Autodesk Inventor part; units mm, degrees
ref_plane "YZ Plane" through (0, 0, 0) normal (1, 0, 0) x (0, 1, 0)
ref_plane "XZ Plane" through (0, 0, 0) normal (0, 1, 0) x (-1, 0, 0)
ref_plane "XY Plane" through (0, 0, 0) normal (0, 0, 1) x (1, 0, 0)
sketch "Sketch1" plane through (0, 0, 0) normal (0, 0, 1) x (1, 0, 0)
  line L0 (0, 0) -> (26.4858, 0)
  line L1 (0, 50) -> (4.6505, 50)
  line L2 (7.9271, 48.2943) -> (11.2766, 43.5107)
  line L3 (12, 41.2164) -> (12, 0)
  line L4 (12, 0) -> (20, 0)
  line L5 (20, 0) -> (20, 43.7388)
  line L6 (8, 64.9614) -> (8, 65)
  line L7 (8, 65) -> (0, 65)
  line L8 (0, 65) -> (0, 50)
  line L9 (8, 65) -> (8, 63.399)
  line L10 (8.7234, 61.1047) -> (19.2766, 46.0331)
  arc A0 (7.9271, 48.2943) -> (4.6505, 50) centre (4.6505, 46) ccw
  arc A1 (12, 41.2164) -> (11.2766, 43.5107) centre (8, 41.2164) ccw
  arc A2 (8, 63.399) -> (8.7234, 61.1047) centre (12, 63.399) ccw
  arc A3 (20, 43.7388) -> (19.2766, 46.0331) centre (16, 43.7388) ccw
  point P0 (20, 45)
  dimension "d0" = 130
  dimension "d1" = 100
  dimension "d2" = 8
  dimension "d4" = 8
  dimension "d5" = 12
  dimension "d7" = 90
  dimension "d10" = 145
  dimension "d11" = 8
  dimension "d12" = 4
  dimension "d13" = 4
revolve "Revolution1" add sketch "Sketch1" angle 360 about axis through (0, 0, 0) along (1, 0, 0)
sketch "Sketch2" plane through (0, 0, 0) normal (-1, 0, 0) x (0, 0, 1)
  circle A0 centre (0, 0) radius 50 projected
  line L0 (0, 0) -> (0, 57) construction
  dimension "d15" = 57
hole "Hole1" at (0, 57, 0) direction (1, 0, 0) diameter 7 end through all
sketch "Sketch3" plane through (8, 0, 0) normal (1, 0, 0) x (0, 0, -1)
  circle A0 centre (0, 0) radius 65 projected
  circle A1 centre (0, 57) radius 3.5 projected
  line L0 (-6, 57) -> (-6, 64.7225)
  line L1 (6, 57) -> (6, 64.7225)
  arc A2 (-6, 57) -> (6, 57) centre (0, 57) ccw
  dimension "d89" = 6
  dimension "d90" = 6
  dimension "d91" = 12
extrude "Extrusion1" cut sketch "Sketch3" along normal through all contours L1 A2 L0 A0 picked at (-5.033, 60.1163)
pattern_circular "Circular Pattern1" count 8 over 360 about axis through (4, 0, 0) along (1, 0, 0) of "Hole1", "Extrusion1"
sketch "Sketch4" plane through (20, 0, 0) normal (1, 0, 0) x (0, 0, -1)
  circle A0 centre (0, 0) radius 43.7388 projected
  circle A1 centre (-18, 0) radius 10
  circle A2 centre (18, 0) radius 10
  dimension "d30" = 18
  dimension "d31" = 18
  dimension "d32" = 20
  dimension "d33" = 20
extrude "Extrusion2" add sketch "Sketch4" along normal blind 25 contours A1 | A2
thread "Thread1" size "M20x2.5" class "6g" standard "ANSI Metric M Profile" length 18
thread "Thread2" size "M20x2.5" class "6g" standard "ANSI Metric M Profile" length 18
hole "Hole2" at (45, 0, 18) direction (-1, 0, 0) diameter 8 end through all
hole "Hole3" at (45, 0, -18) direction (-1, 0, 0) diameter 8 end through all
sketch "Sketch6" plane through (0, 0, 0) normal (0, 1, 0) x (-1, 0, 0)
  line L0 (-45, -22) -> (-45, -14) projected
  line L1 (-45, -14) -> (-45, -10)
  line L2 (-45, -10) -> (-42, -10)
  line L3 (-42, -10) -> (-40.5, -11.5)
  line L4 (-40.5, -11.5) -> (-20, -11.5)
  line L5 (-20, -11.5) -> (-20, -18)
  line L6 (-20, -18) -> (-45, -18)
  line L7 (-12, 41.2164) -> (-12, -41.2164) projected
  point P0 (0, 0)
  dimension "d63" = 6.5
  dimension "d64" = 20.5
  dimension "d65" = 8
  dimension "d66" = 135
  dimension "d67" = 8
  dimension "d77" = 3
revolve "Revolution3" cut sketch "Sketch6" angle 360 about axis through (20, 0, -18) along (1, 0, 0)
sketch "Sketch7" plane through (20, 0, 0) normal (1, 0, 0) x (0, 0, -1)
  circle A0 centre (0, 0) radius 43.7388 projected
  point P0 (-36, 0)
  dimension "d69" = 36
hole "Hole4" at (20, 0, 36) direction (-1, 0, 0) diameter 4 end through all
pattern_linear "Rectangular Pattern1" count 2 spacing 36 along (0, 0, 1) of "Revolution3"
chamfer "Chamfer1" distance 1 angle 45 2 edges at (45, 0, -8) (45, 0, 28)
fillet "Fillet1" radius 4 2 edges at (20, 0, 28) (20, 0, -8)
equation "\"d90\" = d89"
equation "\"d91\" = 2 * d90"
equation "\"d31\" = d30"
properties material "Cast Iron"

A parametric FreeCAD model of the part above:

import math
import FreeCAD as App
import Part
import Sketcher

V = App.Vector
Q = App.Units.Quantity


def edges_at(feature, points):
    """Names of the edges that pass closest to the given points."""
    edges = feature.Shape.Edges
    near = lambda p: min(range(len(edges)), key=lambda i: edges[i].distToShape(Part.Vertex(*p))[0])
    return sorted({f"Edge{near(p) + 1}" for p in points})


def add_polygon(sketch, points):
    """Adds a closed chain of lines whose ends are joined by coincident constraints."""
    first, n = sketch.GeometryCount, len(points)
    for a, b in zip(points, points[1:] + points[:1]):
        sketch.addGeometry(Part.LineSegment(App.Vector(*a, 0), App.Vector(*b, 0)), False)
    for i in range(n):
        sketch.addConstraint(Sketcher.Constraint("Coincident", first + i, 2, first + (i + 1) % n, 1))

doc = App.newDocument("Part")
body = doc.addObject("PartDesign::Body", "Body")

sketch1 = doc.addObject("Sketcher::SketchObject", "Sketch")
body.addObject(sketch1)
sketch1.AttachmentSupport = (doc.XY_Plane, [""])
sketch1.MapMode = "FlatFace"
sketch1.addGeometry([
    Part.LineSegment(V(12, 41.2, 0), V(12, 0, 0)),
    Part.LineSegment(V(12, 0, 0), V(20, 0, 0)),
    Part.LineSegment(V(20, 0, 0), V(20, 43.7, 0)),
    Part.ArcOfCircle(Part.Circle(V(16, 43.7, 0), V(0, 0, 1), 4), math.radians(0), math.radians(35)),
    Part.LineSegment(V(19.3, 46, 0), V(8.7, 61.1, 0)),
    Part.ArcOfCircle(Part.Circle(V(12, 63.4, 0), V(0, 0, 1), 4), math.radians(180), math.radians(215)),
    Part.LineSegment(V(8, 63.4, 0), V(8, 65, 0)),
    Part.LineSegment(V(8, 65, 0), V(0, 65, 0)),
    Part.LineSegment(V(0, 65, 0), V(0, 50, 0)),
    Part.LineSegment(V(0, 50, 0), V(4.7, 50, 0)),
    Part.ArcOfCircle(Part.Circle(V(4.7, 46, 0), V(0, 0, 1), 4), math.radians(35), math.radians(90)),
    Part.LineSegment(V(7.9, 48.3, 0), V(11.3, 43.5, 0)),
    Part.ArcOfCircle(Part.Circle(V(8, 41.2, 0), V(0, 0, 1), 4), math.radians(0), math.radians(35)),
], False)
sketch1.addConstraint([
    Sketcher.Constraint("Coincident", 0, 2, 1, 1),
    Sketcher.Constraint("Coincident", 1, 2, 2, 1),
    Sketcher.Constraint("Tangent", 2, 2, 3, 1),
    Sketcher.Constraint("Tangent", 3, 2, 4, 1),
    Sketcher.Constraint("Tangent", 4, 2, 5, 2),
    Sketcher.Constraint("Tangent", 5, 1, 6, 1),
    Sketcher.Constraint("Coincident", 6, 2, 7, 1),
    Sketcher.Constraint("Coincident", 7, 2, 8, 1),
    Sketcher.Constraint("Coincident", 8, 2, 9, 1),
    Sketcher.Constraint("Tangent", 9, 2, 10, 2),
    Sketcher.Constraint("Tangent", 10, 1, 11, 1),
    Sketcher.Constraint("Tangent", 11, 2, 12, 2),
    Sketcher.Constraint("Tangent", 12, 1, 0, 1),
    Sketcher.Constraint("Vertical", 0),
    Sketcher.Constraint("Horizontal", 1),
    Sketcher.Constraint("Vertical", 2),
    Sketcher.Constraint("Vertical", 6),
    Sketcher.Constraint("Horizontal", 7),
    Sketcher.Constraint("Vertical", 8),
    Sketcher.Constraint("Horizontal", 9),
    Sketcher.Constraint("Equal", 3, 5),
    Sketcher.Constraint("Equal", 5, 10),
    Sketcher.Constraint("Equal", 10, 12),
    Sketcher.Constraint("PointOnObject", 0, 2, -1),
    Sketcher.Constraint("PointOnObject", 7, 2, -2),
    Sketcher.Constraint("Parallel", 4, 11),
    Sketcher.Constraint("Vertical", 5, 3, 0, 2),
    Sketcher.Constraint("Equal", 1, 7),
    Sketcher.Constraint("Radius", 3, Q("4 mm")),
    Sketcher.Constraint("DistanceX", 1, 1, 1, 2, Q("8 mm")),
    Sketcher.Constraint("DistanceY", 8, 2, 8, 1, Q("15 mm")),
    Sketcher.Constraint("Angle", 4, Q("124.9999 deg")),
    Sketcher.Constraint("DistanceY", -1, 1, 10, 3, Q("46 mm")),
    Sketcher.Constraint("DistanceY", 6, 1, 6, 2, Q("1.601 mm")),
    Sketcher.Constraint("DistanceX", 9, 1, 9, 2, Q("4.6505 mm")),
])
revolution = doc.addObject("PartDesign::Revolution", "Revolution")
body.addObject(revolution)
revolution.Profile = sketch1
revolution.ReferenceAxis = (sketch1, ["H_Axis"])
revolution.Angle = 360

sketch2 = doc.addObject("Sketcher::SketchObject", "Sketch001")
body.addObject(sketch2)
sketch2.AttachmentSupport = (doc.YZ_Plane, [""])
sketch2.MapMode = "FlatFace"
sketch2.addGeometry(Part.Circle(V(57, 0, 0), V(0, 0, 1), 3.5), False)
sketch2.addConstraint([
    Sketcher.Constraint("PointOnObject", 0, 3, -1),
    Sketcher.Constraint("Diameter", 0, Q("7 mm")),
    Sketcher.Constraint("DistanceX", -1, 1, 0, 3, Q("57 mm")),
])
doc.recompute()
hole = doc.addObject("PartDesign::Hole", "Hole")
body.addObject(hole)
hole.Profile = sketch2
hole.ThreadType = "None"
hole.Diameter = 7
hole.DepthType = "ThroughAll"
hole.Reversed = True

sketch3 = doc.addObject("Sketcher::SketchObject", "Sketch002")
body.addObject(sketch3)
sketch3.AttachmentSupport = (doc.YZ_Plane, [""])
sketch3.MapMode = "FlatFace"
sketch3.AttachmentOffset = App.Placement(V(0, 0, 8), App.Rotation())
sketch3.addGeometry([
    Part.LineSegment(V(57, -6, 0), V(64.7, -6, 0)),
    Part.ArcOfCircle(Part.Circle(V(0, 0, 0), V(0, 0, 1), 65), math.radians(-5.3), math.radians(5.3)),
    Part.LineSegment(V(64.7, 6, 0), V(57, 6, 0)),
    Part.ArcOfCircle(Part.Circle(V(57, 0, 0), V(0, 0, 1), 6), math.radians(90), math.radians(270)),
    Part.Circle(V(57, 0, 0), V(0, 0, 1), 3.5),
], False)
sketch3.addConstraint([
    Sketcher.Constraint("Coincident", 0, 2, 1, 1),
    Sketcher.Constraint("Coincident", 1, 2, 2, 1),
    Sketcher.Constraint("Tangent", 2, 2, 3, 1),
    Sketcher.Constraint("Tangent", 3, 2, 0, 1),
    Sketcher.Constraint("Horizontal", 0),
    Sketcher.Constraint("Horizontal", 2),
    Sketcher.Constraint("Coincident", 1, 3, -1, 1),
    Sketcher.Constraint("Coincident", 4, 3, 3, 3),
    Sketcher.Constraint("PointOnObject", 3, 3, -1),
    Sketcher.Constraint("Radius", 3, Q("6 mm")),
    Sketcher.Constraint("Diameter", 4, Q("7 mm")),
    Sketcher.Constraint("Radius", 1, Q("65 mm")),
    Sketcher.Constraint("DistanceX", -1, 1, 3, 3, Q("57 mm")),
])
pocket1 = doc.addObject("PartDesign::Pocket", "Pocket")
body.addObject(pocket1)
pocket1.Profile = sketch3
pocket1.Type = "ThroughAll"
pocket1.Reversed = True
doc.recompute()

polarpattern = doc.addObject("PartDesign::PolarPattern", "PolarPattern")
body.addObject(polarpattern)
polarpattern.Originals = [hole, pocket1]
polarpattern.Axis = (doc.X_Axis, [""])
polarpattern.Angle = 360
polarpattern.Occurrences = 8
body.Tip = polarpattern

sketch4 = doc.addObject("Sketcher::SketchObject", "Sketch003")
body.addObject(sketch4)
sketch4.AttachmentSupport = (doc.YZ_Plane, [""])
sketch4.MapMode = "FlatFace"
sketch4.AttachmentOffset = App.Placement(V(0, 0, 20), App.Rotation())
sketch4.addGeometry([
    Part.Circle(V(0, 18, 0), V(0, 0, 1), 10),
    Part.Circle(V(0, -18, 0), V(0, 0, 1), 10),
], False)
sketch4.addConstraint([
    Sketcher.Constraint("Equal", 0, 1),
    Sketcher.Constraint("Symmetric", 0, 3, 1, 3, -1, 1),
    Sketcher.Constraint("PointOnObject", 0, 3, -2),
    Sketcher.Constraint("Diameter", 0, Q("20 mm")),
    Sketcher.Constraint("DistanceY", -1, 1, 0, 3, Q("18 mm")),
])
pad1 = doc.addObject("PartDesign::Pad", "Pad")
body.addObject(pad1)
pad1.Profile = sketch4
pad1.Length = 25

sketch5 = doc.addObject("Sketcher::SketchObject", "Sketch004")
body.addObject(sketch5)
sketch5.AttachmentSupport = (doc.YZ_Plane, [""])
sketch5.MapMode = "FlatFace"
sketch5.AttachmentOffset = App.Placement(V(0, 0, 45), App.Rotation())
sketch5.addGeometry(Part.Circle(V(0, 18, 0), V(0, 0, 1), 4), False)
sketch5.addConstraint([
    Sketcher.Constraint("PointOnObject", 0, 3, -2),
    Sketcher.Constraint("Diameter", 0, Q("8 mm")),
    Sketcher.Constraint("DistanceY", -1, 1, 0, 3, Q("18 mm")),
])
doc.recompute()
hole2 = doc.addObject("PartDesign::Hole", "Hole001")
body.addObject(hole2)
hole2.Profile = sketch5
hole2.ThreadType = "None"
hole2.Diameter = 8
hole2.DepthType = "ThroughAll"

sketch6 = doc.addObject("Sketcher::SketchObject", "Sketch005")
body.addObject(sketch6)
sketch6.AttachmentSupport = (doc.YZ_Plane, [""])
sketch6.MapMode = "FlatFace"
sketch6.AttachmentOffset = App.Placement(V(0, 0, 45), App.Rotation())
sketch6.addGeometry(Part.Circle(V(0, -18, 0), V(0, 0, 1), 4), False)
sketch6.addConstraint([
    Sketcher.Constraint("PointOnObject", 0, 3, -2),
    Sketcher.Constraint("Diameter", 0, Q("8 mm")),
    Sketcher.Constraint("DistanceY", 0, 3, -1, 1, Q("18 mm")),
])
doc.recompute()
hole3 = doc.addObject("PartDesign::Hole", "Hole002")
body.addObject(hole3)
hole3.Profile = sketch6
hole3.ThreadType = "None"
hole3.Diameter = 8
hole3.DepthType = "ThroughAll"

sketch7 = doc.addObject("Sketcher::SketchObject", "Sketch006")
body.addObject(sketch7)
sketch7.AttachmentSupport = (doc.XZ_Plane, [""])
sketch7.MapMode = "FlatFace"
add_polygon(sketch7, [(45, -10), (45, -18), (20, -18), (20, -11.5), (40.5, -11.5), (42, -10)])
sketch7.addGeometry(Part.LineSegment(V(20, -18, 0), V(45, -18, 0)), True)
sketch7.addConstraint([
    Sketcher.Constraint("Vertical", 0),
    Sketcher.Constraint("Horizontal", 1),
    Sketcher.Constraint("Vertical", 2),
    Sketcher.Constraint("Horizontal", 3),
    Sketcher.Constraint("Horizontal", 5),
    Sketcher.Constraint("Horizontal", 6),
    Sketcher.Constraint("Coincident", 6, 1, 1, 2),
    Sketcher.Constraint("Vertical", 5, 2, 6, 2),
    Sketcher.Constraint("DistanceX", 5, 1, 5, 2, Q("3 mm")),
    Sketcher.Constraint("DistanceY", 0, 2, 0, 1, Q("8 mm")),
    Sketcher.Constraint("DistanceX", 3, 1, 3, 2, Q("20.5 mm")),
    Sketcher.Constraint("DistanceY", 2, 1, 2, 2, Q("6.5 mm")),
    Sketcher.Constraint("DistanceX", 1, 2, 1, 1, Q("25 mm")),
    Sketcher.Constraint("DistanceX", -1, 1, 0, 2, Q("45 mm")),
    Sketcher.Constraint("DistanceY", 0, 2, -1, 1, Q("18 mm")),
])
groove = doc.addObject("PartDesign::Groove", "Groove")
body.addObject(groove)
groove.Profile = sketch7
groove.ReferenceAxis = (sketch7, ["Axis0"])
groove.Angle = 360

sketch8 = doc.addObject("Sketcher::SketchObject", "Sketch007")
body.addObject(sketch8)
sketch8.AttachmentSupport = (doc.YZ_Plane, [""])
sketch8.MapMode = "FlatFace"
sketch8.AttachmentOffset = App.Placement(V(0, 0, 20), App.Rotation())
sketch8.addGeometry(Part.Circle(V(0, 36, 0), V(0, 0, 1), 2), False)
sketch8.addConstraint([
    Sketcher.Constraint("PointOnObject", 0, 3, -2),
    Sketcher.Constraint("Diameter", 0, Q("4 mm")),
    Sketcher.Constraint("DistanceY", -1, 1, 0, 3, Q("36 mm")),
])
doc.recompute()
hole4 = doc.addObject("PartDesign::Hole", "Hole003")
body.addObject(hole4)
hole4.Profile = sketch8
hole4.ThreadType = "None"
hole4.Diameter = 4
hole4.DepthType = "ThroughAll"
doc.recompute()

linearpattern = doc.addObject("PartDesign::LinearPattern", "LinearPattern")
body.addObject(linearpattern)
linearpattern.Originals = [groove]
linearpattern.Direction = (doc.Z_Axis, [""])
linearpattern.Mode = "offset"
linearpattern.Offset = 36
linearpattern.Occurrences = 2
body.Tip = linearpattern
doc.recompute()

chamfer = doc.addObject("PartDesign::Chamfer", "Chamfer")
body.addObject(chamfer)
chamfer.Base = (linearpattern, edges_at(linearpattern, [(45, 0, -8), (45, 0, 28)]))
chamfer.Size = 1
doc.recompute()

fillet = doc.addObject("PartDesign::Fillet", "Fillet")
body.addObject(fillet)
fillet.Base = (chamfer, edges_at(chamfer, [(20, 0, 28), (20, 0, -8)]))
fillet.Radius = 4

doc.recompute()
